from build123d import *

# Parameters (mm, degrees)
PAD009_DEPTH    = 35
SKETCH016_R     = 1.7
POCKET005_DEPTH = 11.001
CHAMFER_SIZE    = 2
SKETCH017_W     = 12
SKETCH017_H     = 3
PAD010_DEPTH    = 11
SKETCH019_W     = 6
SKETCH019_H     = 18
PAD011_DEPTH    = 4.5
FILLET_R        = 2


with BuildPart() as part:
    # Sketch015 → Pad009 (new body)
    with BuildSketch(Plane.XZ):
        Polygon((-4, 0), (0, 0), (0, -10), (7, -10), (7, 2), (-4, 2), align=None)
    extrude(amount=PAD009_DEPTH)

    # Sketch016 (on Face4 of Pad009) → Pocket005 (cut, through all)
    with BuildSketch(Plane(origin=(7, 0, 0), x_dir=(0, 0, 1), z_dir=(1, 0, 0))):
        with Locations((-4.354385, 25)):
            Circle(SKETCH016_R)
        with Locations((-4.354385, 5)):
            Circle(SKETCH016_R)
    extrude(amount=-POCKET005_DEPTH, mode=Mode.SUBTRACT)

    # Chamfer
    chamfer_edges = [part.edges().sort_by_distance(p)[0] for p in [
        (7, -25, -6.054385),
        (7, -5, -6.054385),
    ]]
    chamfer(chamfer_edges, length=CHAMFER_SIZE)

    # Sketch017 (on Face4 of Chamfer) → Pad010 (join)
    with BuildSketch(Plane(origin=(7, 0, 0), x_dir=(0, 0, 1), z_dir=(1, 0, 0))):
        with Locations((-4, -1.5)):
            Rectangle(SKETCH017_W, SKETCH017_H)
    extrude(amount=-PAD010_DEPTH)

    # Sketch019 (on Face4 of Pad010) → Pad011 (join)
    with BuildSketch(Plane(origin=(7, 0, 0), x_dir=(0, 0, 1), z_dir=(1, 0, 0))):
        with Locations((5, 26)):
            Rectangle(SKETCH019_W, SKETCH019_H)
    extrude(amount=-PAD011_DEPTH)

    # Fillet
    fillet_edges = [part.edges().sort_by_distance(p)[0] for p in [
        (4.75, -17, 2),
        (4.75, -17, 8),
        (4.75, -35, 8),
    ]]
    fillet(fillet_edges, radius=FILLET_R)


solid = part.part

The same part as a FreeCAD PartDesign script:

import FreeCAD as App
import Part
import Sketcher


def edges_at(feature, points):
    """Names of the edges that pass closest to the given points."""
    edges = feature.Shape.Edges
    near = lambda p: min(range(len(edges)), key=lambda i: edges[i].distToShape(Part.Vertex(*p))[0])
    return sorted({f"Edge{near(p) + 1}" for p in points})

doc = App.newDocument("Part")
body = doc.addObject("PartDesign::Body", "Body")

sketch1 = doc.addObject("Sketcher::SketchObject", "Sketch")
body.addObject(sketch1)
sketch1.AttachmentSupport = (doc.XZ_Plane, [""])
sketch1.MapMode = "FlatFace"
sketch1.addGeometry([
    Part.LineSegment(App.Vector(-4, 0, 0), App.Vector(0, 0, 0)),
    Part.LineSegment(App.Vector(0, 0, 0), App.Vector(0, -10, 0)),
    Part.LineSegment(App.Vector(0, -10, 0), App.Vector(7, -10, 0)),
    Part.LineSegment(App.Vector(7, -10, 0), App.Vector(7, 2, 0)),
    Part.LineSegment(App.Vector(7, 2, 0), App.Vector(-4, 2, 0)),
    Part.LineSegment(App.Vector(-4, 2, 0), App.Vector(-4, 0, 0)),
], False)
sketch1.addConstraint([
    Sketcher.Constraint("Coincident", 0, 2, 1, 1),
    Sketcher.Constraint("Coincident", 1, 2, 2, 1),
    Sketcher.Constraint("Coincident", 2, 2, 3, 1),
    Sketcher.Constraint("Coincident", 3, 2, 4, 1),
    Sketcher.Constraint("Coincident", 4, 2, 5, 1),
    Sketcher.Constraint("Coincident", 5, 2, 0, 1),
    Sketcher.Constraint("Horizontal", 0),
    Sketcher.Constraint("Vertical", 1),
    Sketcher.Constraint("Horizontal", 2),
    Sketcher.Constraint("Vertical", 3),
    Sketcher.Constraint("Horizontal", 4),
    Sketcher.Constraint("Vertical", 5),
    Sketcher.Constraint("Coincident", 0, 2, -1, 1),
    Sketcher.Constraint("DistanceX", 0, 1, 0, 2, 4.0),
    Sketcher.Constraint("DistanceX", 2, 1, 2, 2, 7.0),
    Sketcher.Constraint("DistanceY", 1, 2, 1, 1, 10.0),
    Sketcher.Constraint("DistanceY", 3, 1, 3, 2, 12.0),
])
pad1 = doc.addObject("PartDesign::Pad", "Pad")
body.addObject(pad1)
pad1.Profile = sketch1
pad1.Length = 35

sketch2 = doc.addObject("Sketcher::SketchObject", "Sketch001")
body.addObject(sketch2)
sketch2.AttachmentSupport = (doc.YZ_Plane, [""])
sketch2.MapMode = "FlatFace"
sketch2.AttachmentOffset = App.Placement(App.Vector(0, 0, 7), App.Rotation())
sketch2.addGeometry([
    Part.Circle(App.Vector(-25, -4.354385, 0), App.Vector(0, 0, 1), 1.7),
    Part.Circle(App.Vector(-5, -4.354385, 0), App.Vector(0, 0, 1), 1.7),
], False)
sketch2.addConstraint([
    Sketcher.Constraint("Equal", 0, 1),
    Sketcher.Constraint("Horizontal", 0, 3, 1, 3),
    Sketcher.Constraint("Diameter", 0, 3.4),
    Sketcher.Constraint("DistanceX", 0, 3, -1, 1, 25.0),
    Sketcher.Constraint("DistanceX", 1, 3, -1, 1, 5.0),
    Sketcher.Constraint("DistanceY", 0, 3, -1, 1, 4.354385),
])
pocket1 = doc.addObject("PartDesign::Pocket", "Pocket")
body.addObject(pocket1)
pocket1.Profile = sketch2
pocket1.Type = "ThroughAll"
doc.recompute()

chamfer = doc.addObject("PartDesign::Chamfer", "Chamfer")
body.addObject(chamfer)
chamfer.Base = (pocket1, edges_at(pocket1, [(7, -25, -6.054), (7, -5, -6.054)]))
chamfer.Size = 2

sketch3 = doc.addObject("Sketcher::SketchObject", "Sketch002")
body.addObject(sketch3)
sketch3.AttachmentSupport = (doc.YZ_Plane, [""])
sketch3.MapMode = "FlatFace"
sketch3.AttachmentOffset = App.Placement(App.Vector(0, 0, 7), App.Rotation())
sketch3.addGeometry([
    Part.LineSegment(App.Vector(0, -10, 0), App.Vector(3, -10, 0)),
    Part.LineSegment(App.Vector(3, -10, 0), App.Vector(3, 2, 0)),
    Part.LineSegment(App.Vector(3, 2, 0), App.Vector(0, 2, 0)),
    Part.LineSegment(App.Vector(0, 2, 0), App.Vector(0, -10, 0)),
], False)
sketch3.addConstraint([
    Sketcher.Constraint("Coincident", 0, 2, 1, 1),
    Sketcher.Constraint("Coincident", 1, 2, 2, 1),
    Sketcher.Constraint("Coincident", 2, 2, 3, 1),
    Sketcher.Constraint("Coincident", 3, 2, 0, 1),
    Sketcher.Constraint("Horizontal", 0),
    Sketcher.Constraint("Vertical", 1),
    Sketcher.Constraint("Horizontal", 2),
    Sketcher.Constraint("Vertical", 3),
    Sketcher.Constraint("PointOnObject", 2, 2, -2),
    Sketcher.Constraint("DistanceX", 0, 1, 0, 2, 3.0),
    Sketcher.Constraint("DistanceY", 1, 1, 1, 2, 12.0),
    Sketcher.Constraint("DistanceY", 0, 2, -1, 1, 10.0),
])
pad2 = doc.addObject("PartDesign::Pad", "Pad001")
body.addObject(pad2)
pad2.Profile = sketch3
pad2.Length = 11
pad2.Reversed = True

sketch4 = doc.addObject("Sketcher::SketchObject", "Sketch003")
body.addObject(sketch4)
sketch4.AttachmentSupport = (doc.YZ_Plane, [""])
sketch4.MapMode = "FlatFace"
sketch4.AttachmentOffset = App.Placement(App.Vector(0, 0, 7), App.Rotation())
sketch4.addGeometry([
    Part.LineSegment(App.Vector(-35, 2, 0), App.Vector(-17, 2, 0)),
    Part.LineSegment(App.Vector(-17, 2, 0), App.Vector(-17, 8, 0)),
    Part.LineSegment(App.Vector(-17, 8, 0), App.Vector(-35, 8, 0)),
    Part.LineSegment(App.Vector(-35, 8, 0), App.Vector(-35, 2, 0)),
], False)
sketch4.addConstraint([
    Sketcher.Constraint("Coincident", 0, 2, 1, 1),
    Sketcher.Constraint("Coincident", 1, 2, 2, 1),
    Sketcher.Constraint("Coincident", 2, 2, 3, 1),
    Sketcher.Constraint("Coincident", 3, 2, 0, 1),
    Sketcher.Constraint("Horizontal", 0),
    Sketcher.Constraint("Vertical", 1),
    Sketcher.Constraint("Horizontal", 2),
    Sketcher.Constraint("Vertical", 3),
    Sketcher.Constraint("DistanceX", 0, 1, 0, 2, 18.0),
    Sketcher.Constraint("DistanceY", 1, 1, 1, 2, 6.0),
    Sketcher.Constraint("DistanceX", 0, 2, -1, 1, 17.0),
    Sketcher.Constraint("DistanceY", -1, 1, 0, 2, 2.0),
])
pad3 = doc.addObject("PartDesign::Pad", "Pad002")
body.addObject(pad3)
pad3.Profile = sketch4
pad3.Length = 4.5
pad3.Reversed = True
doc.recompute()

fillet = doc.addObject("PartDesign::Fillet", "Fillet")
body.addObject(fillet)
fillet.Base = (pad3, edges_at(pad3, [(4.75, -17, 2), (4.75, -17, 8), (4.75, -35, 8)]))
fillet.Radius = 2

doc.recompute()
